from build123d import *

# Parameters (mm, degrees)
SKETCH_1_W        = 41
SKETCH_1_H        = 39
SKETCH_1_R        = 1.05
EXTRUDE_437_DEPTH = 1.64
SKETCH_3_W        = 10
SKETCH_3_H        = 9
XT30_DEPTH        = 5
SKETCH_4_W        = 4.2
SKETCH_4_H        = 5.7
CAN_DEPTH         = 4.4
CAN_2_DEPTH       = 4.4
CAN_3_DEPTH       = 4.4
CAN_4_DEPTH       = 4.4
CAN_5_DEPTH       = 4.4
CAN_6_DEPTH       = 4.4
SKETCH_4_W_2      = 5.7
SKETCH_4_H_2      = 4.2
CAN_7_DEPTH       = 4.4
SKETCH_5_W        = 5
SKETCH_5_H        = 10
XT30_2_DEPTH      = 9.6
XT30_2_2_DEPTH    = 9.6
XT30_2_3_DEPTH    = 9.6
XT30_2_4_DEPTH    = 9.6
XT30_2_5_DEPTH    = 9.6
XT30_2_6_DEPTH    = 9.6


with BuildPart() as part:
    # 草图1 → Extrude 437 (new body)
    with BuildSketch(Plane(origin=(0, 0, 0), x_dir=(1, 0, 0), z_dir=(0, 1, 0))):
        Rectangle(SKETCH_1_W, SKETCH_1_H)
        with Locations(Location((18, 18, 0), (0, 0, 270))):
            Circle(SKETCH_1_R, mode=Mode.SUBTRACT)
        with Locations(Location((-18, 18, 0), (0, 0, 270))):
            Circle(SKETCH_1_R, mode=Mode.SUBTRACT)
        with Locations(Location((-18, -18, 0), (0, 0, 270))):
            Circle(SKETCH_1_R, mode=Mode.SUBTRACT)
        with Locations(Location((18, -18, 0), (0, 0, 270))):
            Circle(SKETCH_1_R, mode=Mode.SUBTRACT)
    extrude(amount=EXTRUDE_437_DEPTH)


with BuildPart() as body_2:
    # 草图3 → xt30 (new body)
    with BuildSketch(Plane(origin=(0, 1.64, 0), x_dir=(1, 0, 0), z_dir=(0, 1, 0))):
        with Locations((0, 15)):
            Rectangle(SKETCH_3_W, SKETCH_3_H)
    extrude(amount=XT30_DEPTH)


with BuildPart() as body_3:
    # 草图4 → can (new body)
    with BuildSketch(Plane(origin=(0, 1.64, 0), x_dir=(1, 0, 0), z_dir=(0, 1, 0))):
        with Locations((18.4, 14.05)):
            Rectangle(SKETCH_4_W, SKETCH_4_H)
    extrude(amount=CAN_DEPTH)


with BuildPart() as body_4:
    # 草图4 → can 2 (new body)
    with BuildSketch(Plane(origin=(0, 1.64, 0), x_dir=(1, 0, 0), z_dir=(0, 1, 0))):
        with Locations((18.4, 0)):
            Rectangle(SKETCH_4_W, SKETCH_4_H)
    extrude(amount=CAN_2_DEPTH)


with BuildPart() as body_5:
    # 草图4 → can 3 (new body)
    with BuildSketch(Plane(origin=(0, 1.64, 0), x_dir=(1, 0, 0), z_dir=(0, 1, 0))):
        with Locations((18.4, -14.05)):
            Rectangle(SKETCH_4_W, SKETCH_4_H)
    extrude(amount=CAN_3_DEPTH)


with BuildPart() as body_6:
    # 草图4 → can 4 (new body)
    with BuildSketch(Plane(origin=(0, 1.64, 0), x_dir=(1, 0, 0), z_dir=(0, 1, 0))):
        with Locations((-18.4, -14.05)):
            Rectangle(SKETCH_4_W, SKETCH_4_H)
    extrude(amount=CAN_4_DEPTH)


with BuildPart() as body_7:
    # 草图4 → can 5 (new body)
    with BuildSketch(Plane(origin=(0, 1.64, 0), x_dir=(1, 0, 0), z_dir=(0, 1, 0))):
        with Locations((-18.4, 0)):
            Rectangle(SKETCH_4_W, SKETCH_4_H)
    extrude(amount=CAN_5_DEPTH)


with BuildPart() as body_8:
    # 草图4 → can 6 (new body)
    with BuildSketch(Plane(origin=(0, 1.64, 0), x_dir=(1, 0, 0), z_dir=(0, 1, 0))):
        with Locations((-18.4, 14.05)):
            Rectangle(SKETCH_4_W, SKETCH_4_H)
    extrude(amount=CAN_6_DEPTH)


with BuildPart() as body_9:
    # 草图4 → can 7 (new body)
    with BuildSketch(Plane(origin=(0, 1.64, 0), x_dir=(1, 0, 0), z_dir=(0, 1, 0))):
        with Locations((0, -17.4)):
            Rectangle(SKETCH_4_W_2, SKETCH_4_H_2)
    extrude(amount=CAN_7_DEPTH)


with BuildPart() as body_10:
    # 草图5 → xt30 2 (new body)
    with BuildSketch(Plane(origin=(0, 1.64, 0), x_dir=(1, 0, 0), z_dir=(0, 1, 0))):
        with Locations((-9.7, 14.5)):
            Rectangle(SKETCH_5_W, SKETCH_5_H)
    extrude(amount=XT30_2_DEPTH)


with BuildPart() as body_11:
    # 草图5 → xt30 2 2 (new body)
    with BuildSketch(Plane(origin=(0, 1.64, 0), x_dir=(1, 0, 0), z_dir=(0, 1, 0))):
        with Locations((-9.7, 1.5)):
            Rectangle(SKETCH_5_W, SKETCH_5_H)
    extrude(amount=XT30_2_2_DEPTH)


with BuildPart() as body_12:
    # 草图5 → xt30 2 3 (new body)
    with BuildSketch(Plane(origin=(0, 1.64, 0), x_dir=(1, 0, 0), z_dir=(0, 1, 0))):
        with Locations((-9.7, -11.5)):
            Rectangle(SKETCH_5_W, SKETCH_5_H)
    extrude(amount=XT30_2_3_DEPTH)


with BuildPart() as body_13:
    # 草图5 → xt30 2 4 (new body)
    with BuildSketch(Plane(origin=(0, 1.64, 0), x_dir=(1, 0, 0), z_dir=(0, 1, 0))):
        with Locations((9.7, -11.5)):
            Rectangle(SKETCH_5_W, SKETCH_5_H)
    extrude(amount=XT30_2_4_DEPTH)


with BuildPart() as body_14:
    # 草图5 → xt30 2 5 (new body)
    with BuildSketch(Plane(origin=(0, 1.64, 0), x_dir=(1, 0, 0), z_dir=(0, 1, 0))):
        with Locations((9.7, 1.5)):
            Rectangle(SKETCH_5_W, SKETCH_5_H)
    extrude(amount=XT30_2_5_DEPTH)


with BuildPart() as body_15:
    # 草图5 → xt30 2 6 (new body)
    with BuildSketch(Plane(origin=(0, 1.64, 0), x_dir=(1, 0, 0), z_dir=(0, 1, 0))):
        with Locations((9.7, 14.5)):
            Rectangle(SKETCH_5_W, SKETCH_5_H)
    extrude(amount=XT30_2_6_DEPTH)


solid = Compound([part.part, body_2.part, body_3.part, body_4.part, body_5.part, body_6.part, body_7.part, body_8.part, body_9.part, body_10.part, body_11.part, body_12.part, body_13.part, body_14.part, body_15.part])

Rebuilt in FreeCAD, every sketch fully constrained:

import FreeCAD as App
import Part
import Sketcher
from FreeCAD import Vector


def add_polygon(sketch, points):
    """Adds a closed chain of lines whose ends are joined by coincident constraints."""
    first, n = sketch.GeometryCount, len(points)
    for a, b in zip(points, points[1:] + points[:1]):
        sketch.addGeometry(Part.LineSegment(App.Vector(*a, 0), App.Vector(*b, 0)), False)
    for i in range(n):
        sketch.addConstraint(Sketcher.Constraint("Coincident", first + i, 2, first + (i + 1) % n, 1))

doc = App.newDocument("Part")
body = doc.addObject("PartDesign::Body", "Body")

# Sketch on XZ plane
sketch1 = body.newObject("Sketcher::SketchObject", "Sketch")
sketch1.AttachmentSupport = (doc.getObject("XZ_Plane"), [""])
sketch1.MapMode = "FlatFace"
add_polygon(sketch1, [(-20.5, -19.5), (-20.5, 19.5), (20.5, 19.5), (20.5, -19.5)])  # lines 0-3
sketch1.addGeometry(Part.Circle(Vector(-18, 18, 0), Vector(0, 0, 1), 1.1), False)  # 4
sketch1.addGeometry(Part.Circle(Vector(18, 18, 0), Vector(0, 0, 1), 1.1), False)  # 5
sketch1.addGeometry(Part.Circle(Vector(-18, -18, 0), Vector(0, 0, 1), 1.1), False)  # 6
sketch1.addGeometry(Part.Circle(Vector(18, -18, 0), Vector(0, 0, 1), 1.1), False)  # 7
sketch1.addConstraint(Sketcher.Constraint("Vertical", 0))
sketch1.addConstraint(Sketcher.Constraint("Horizontal", 1))
sketch1.addConstraint(Sketcher.Constraint("Vertical", 2))
sketch1.addConstraint(Sketcher.Constraint("Horizontal", 3))
sketch1.addConstraint(Sketcher.Constraint("Equal", 4, 5))
sketch1.addConstraint(Sketcher.Constraint("Equal", 5, 6))
sketch1.addConstraint(Sketcher.Constraint("Equal", 6, 7))
sketch1.addConstraint(Sketcher.Constraint("Symmetric", 5, 3, 6, 3, -1, 1))
sketch1.addConstraint(Sketcher.Constraint("Symmetric", 4, 3, 7, 3, -1, 1))
sketch1.addConstraint(Sketcher.Constraint("Symmetric", 0, 2, 2, 2, -1, 1))
sketch1.addConstraint(Sketcher.Constraint("Symmetric", 4, 3, 5, 3, -2))
sketch1.addConstraint(Sketcher.Constraint("Diameter", 4, 2.1))
sketch1.addConstraint(Sketcher.Constraint("DistanceX", 1, 1, 1, 2, 41.0))
sketch1.addConstraint(Sketcher.Constraint("DistanceY", 0, 1, 0, 2, 39.0))
sketch1.addConstraint(Sketcher.Constraint("DistanceX", 4, 3, -1, 1, 18.0))
sketch1.addConstraint(Sketcher.Constraint("DistanceY", -1, 1, 4, 3, 18.0))
pad1 = body.newObject("PartDesign::Pad", "Pad")
pad1.Profile = sketch1
pad1.Length = 1.64
pad1.Reversed = True
body2 = doc.addObject("PartDesign::Body", "Body001")

# Sketch on XZ plane
sketch2 = body2.newObject("Sketcher::SketchObject", "Sketch001")
sketch2.AttachmentSupport = (doc.getObject("XZ_Plane001"), [""])
sketch2.MapMode = "FlatFace"
sketch2.AttachmentOffset = App.Placement(Vector(0, 0, -1.64), App.Rotation())
add_polygon(sketch2, [(-5, -20), (-5, -10), (5, -10), (5, -20)])  # lines 0-3
sketch2.addConstraint(Sketcher.Constraint("Vertical", 0))
sketch2.addConstraint(Sketcher.Constraint("Horizontal", 1))
sketch2.addConstraint(Sketcher.Constraint("Vertical", 2))
sketch2.addConstraint(Sketcher.Constraint("Horizontal", 3))
sketch2.addConstraint(Sketcher.Constraint("DistanceX", 1, 1, 1, 2, 10.0))
sketch2.addConstraint(Sketcher.Constraint("DistanceY", 0, 1, 0, 2, 9.0))
sketch2.addConstraint(Sketcher.Constraint("DistanceX", 0, 2, -1, 1, 5.0))
sketch2.addConstraint(Sketcher.Constraint("DistanceY", 0, 2, -1, 1, 10.5))
pad2 = body2.newObject("PartDesign::Pad", "Pad001")
pad2.Profile = sketch2
pad2.Length = 5
pad2.Reversed = True
body3 = doc.addObject("PartDesign::Body", "Body002")

# Sketch on XZ plane
sketch3 = body3.newObject("Sketcher::SketchObject", "Sketch002")
sketch3.AttachmentSupport = (doc.getObject("XZ_Plane002"), [""])
sketch3.MapMode = "FlatFace"
sketch3.AttachmentOffset = App.Placement(Vector(0, 0, -1.64), App.Rotation())
add_polygon(sketch3, [(16.3, -16.9), (16.3, -11.2), (20.5, -11.2), (20.5, -16.9)])  # lines 0-3
sketch3.addConstraint(Sketcher.Constraint("Vertical", 0))
sketch3.addConstraint(Sketcher.Constraint("Horizontal", 1))
sketch3.addConstraint(Sketcher.Constraint("Vertical", 2))
sketch3.addConstraint(Sketcher.Constraint("Horizontal", 3))
sketch3.addConstraint(Sketcher.Constraint("DistanceX", 1, 1, 1, 2, 4.2))
sketch3.addConstraint(Sketcher.Constraint("DistanceY", 0, 1, 0, 2, 5.7))
sketch3.addConstraint(Sketcher.Constraint("DistanceX", -1, 1, 0, 2, 16.3))
sketch3.addConstraint(Sketcher.Constraint("DistanceY", 0, 2, -1, 1, 11.2))
pad3 = body3.newObject("PartDesign::Pad", "Pad002")
pad3.Profile = sketch3
pad3.Length = 4.4
pad3.Reversed = True
body4 = doc.addObject("PartDesign::Body", "Body003")

# Sketch on XZ plane
sketch4 = body4.newObject("Sketcher::SketchObject", "Sketch003")
sketch4.AttachmentSupport = (doc.getObject("XZ_Plane003"), [""])
sketch4.MapMode = "FlatFace"
sketch4.AttachmentOffset = App.Placement(Vector(0, 0, -1.64), App.Rotation())
add_polygon(sketch4, [(16.3, -2.9), (16.3, 2.9), (20.5, 2.9), (20.5, -2.9)])  # lines 0-3
sketch4.addConstraint(Sketcher.Constraint("Vertical", 0))
sketch4.addConstraint(Sketcher.Constraint("Horizontal", 1))
sketch4.addConstraint(Sketcher.Constraint("Vertical", 2))
sketch4.addConstraint(Sketcher.Constraint("Horizontal", 3))
sketch4.addConstraint(Sketcher.Constraint("DistanceX", 1, 1, 1, 2, 4.2))
sketch4.addConstraint(Sketcher.Constraint("DistanceY", 0, 1, 0, 2, 5.7))
sketch4.addConstraint(Sketcher.Constraint("DistanceX", -1, 1, 0, 2, 16.3))
sketch4.addConstraint(Sketcher.Constraint("DistanceY", -1, 1, 0, 2, 2.85))
pad4 = body4.newObject("PartDesign::Pad", "Pad003")
pad4.Profile = sketch4
pad4.Length = 4.4
pad4.Reversed = True
body5 = doc.addObject("PartDesign::Body", "Body004")

# Sketch on XZ plane
sketch5 = body5.newObject("Sketcher::SketchObject", "Sketch004")
sketch5.AttachmentSupport = (doc.getObject("XZ_Plane004"), [""])
sketch5.MapMode = "FlatFace"
sketch5.AttachmentOffset = App.Placement(Vector(0, 0, -1.64), App.Rotation())
add_polygon(sketch5, [(16.3, 11.2), (16.3, 16.9), (20.5, 16.9), (20.5, 11.2)])  # lines 0-3
sketch5.addConstraint(Sketcher.Constraint("Vertical", 0))
sketch5.addConstraint(Sketcher.Constraint("Horizontal", 1))
sketch5.addConstraint(Sketcher.Constraint("Vertical", 2))
sketch5.addConstraint(Sketcher.Constraint("Horizontal", 3))
sketch5.addConstraint(Sketcher.Constraint("DistanceX", 1, 1, 1, 2, 4.2))
sketch5.addConstraint(Sketcher.Constraint("DistanceY", 0, 1, 0, 2, 5.7))
sketch5.addConstraint(Sketcher.Constraint("DistanceX", -1, 1, 0, 2, 16.3))
sketch5.addConstraint(Sketcher.Constraint("DistanceY", -1, 1, 0, 2, 16.9))
pad5 = body5.newObject("PartDesign::Pad", "Pad004")
pad5.Profile = sketch5
pad5.Length = 4.4
pad5.Reversed = True
body6 = doc.addObject("PartDesign::Body", "Body005")

# Sketch on XZ plane
sketch6 = body6.newObject("Sketcher::SketchObject", "Sketch005")
sketch6.AttachmentSupport = (doc.getObject("XZ_Plane005"), [""])
sketch6.MapMode = "FlatFace"
sketch6.AttachmentOffset = App.Placement(Vector(0, 0, -1.64), App.Rotation())
add_polygon(sketch6, [(-20.5, 11.2), (-20.5, 16.9), (-16.3, 16.9), (-16.3, 11.2)])  # lines 0-3
sketch6.addConstraint(Sketcher.Constraint("Vertical", 0))
sketch6.addConstraint(Sketcher.Constraint("Horizontal", 1))
sketch6.addConstraint(Sketcher.Constraint("Vertical", 2))
sketch6.addConstraint(Sketcher.Constraint("Horizontal", 3))
sketch6.addConstraint(Sketcher.Constraint("DistanceX", 1, 1, 1, 2, 4.2))
sketch6.addConstraint(Sketcher.Constraint("DistanceY", 0, 1, 0, 2, 5.7))
sketch6.addConstraint(Sketcher.Constraint("DistanceX", 0, 2, -1, 1, 20.5))
sketch6.addConstraint(Sketcher.Constraint("DistanceY", -1, 1, 0, 2, 16.9))
pad6 = body6.newObject("PartDesign::Pad", "Pad005")
pad6.Profile = sketch6
pad6.Length = 4.4
pad6.Reversed = True
body7 = doc.addObject("PartDesign::Body", "Body006")

# Sketch on XZ plane
sketch7 = body7.newObject("Sketcher::SketchObject", "Sketch006")
sketch7.AttachmentSupport = (doc.getObject("XZ_Plane006"), [""])
sketch7.MapMode = "FlatFace"
sketch7.AttachmentOffset = App.Placement(Vector(0, 0, -1.64), App.Rotation())
add_polygon(sketch7, [(-20.5, -2.9), (-20.5, 2.9), (-16.3, 2.9), (-16.3, -2.9)])  # lines 0-3
sketch7.addConstraint(Sketcher.Constraint("Vertical", 0))
sketch7.addConstraint(Sketcher.Constraint("Horizontal", 1))
sketch7.addConstraint(Sketcher.Constraint("Vertical", 2))
sketch7.addConstraint(Sketcher.Constraint("Horizontal", 3))
sketch7.addConstraint(Sketcher.Constraint("DistanceX", 1, 1, 1, 2, 4.2))
sketch7.addConstraint(Sketcher.Constraint("DistanceY", 0, 1, 0, 2, 5.7))
sketch7.addConstraint(Sketcher.Constraint("DistanceX", 0, 2, -1, 1, 20.5))
sketch7.addConstraint(Sketcher.Constraint("DistanceY", -1, 1, 0, 2, 2.85))
pad7 = body7.newObject("PartDesign::Pad", "Pad006")
pad7.Profile = sketch7
pad7.Length = 4.4
pad7.Reversed = True
body8 = doc.addObject("PartDesign::Body", "Body007")

# Sketch on XZ plane
sketch8 = body8.newObject("Sketcher::SketchObject", "Sketch007")
sketch8.AttachmentSupport = (doc.getObject("XZ_Plane007"), [""])
sketch8.MapMode = "FlatFace"
sketch8.AttachmentOffset = App.Placement(Vector(0, 0, -1.64), App.Rotation())
add_polygon(sketch8, [(-20.5, -16.9), (-20.5, -11.2), (-16.3, -11.2), (-16.3, -16.9)])  # lines 0-3
sketch8.addConstraint(Sketcher.Constraint("Vertical", 0))
sketch8.addConstraint(Sketcher.Constraint("Horizontal", 1))
sketch8.addConstraint(Sketcher.Constraint("Vertical", 2))
sketch8.addConstraint(Sketcher.Constraint("Horizontal", 3))
sketch8.addConstraint(Sketcher.Constraint("DistanceX", 1, 1, 1, 2, 4.2))
sketch8.addConstraint(Sketcher.Constraint("DistanceY", 0, 1, 0, 2, 5.7))
sketch8.addConstraint(Sketcher.Constraint("DistanceX", 0, 2, -1, 1, 20.5))
sketch8.addConstraint(Sketcher.Constraint("DistanceY", 0, 2, -1, 1, 11.2))
pad8 = body8.newObject("PartDesign::Pad", "Pad007")
pad8.Profile = sketch8
pad8.Length = 4.4
pad8.Reversed = True
body9 = doc.addObject("PartDesign::Body", "Body008")

# Sketch on XZ plane
sketch9 = body9.newObject("Sketcher::SketchObject", "Sketch008")
sketch9.AttachmentSupport = (doc.getObject("XZ_Plane008"), [""])
sketch9.MapMode = "FlatFace"
sketch9.AttachmentOffset = App.Placement(Vector(0, 0, -1.64), App.Rotation())
add_polygon(sketch9, [(-2.9, 15.3), (-2.9, 19.5), (2.9, 19.5), (2.9, 15.3)])  # lines 0-3
sketch9.addConstraint(Sketcher.Constraint("Vertical", 0))
sketch9.addConstraint(Sketcher.Constraint("Horizontal", 1))
sketch9.addConstraint(Sketcher.Constraint("Vertical", 2))
sketch9.addConstraint(Sketcher.Constraint("Horizontal", 3))
sketch9.addConstraint(Sketcher.Constraint("DistanceX", 1, 1, 1, 2, 5.7))
sketch9.addConstraint(Sketcher.Constraint("DistanceY", 0, 1, 0, 2, 4.2))
sketch9.addConstraint(Sketcher.Constraint("DistanceY", -1, 1, 0, 2, 19.5))
sketch9.addConstraint(Sketcher.Constraint("DistanceX", 0, 2, -1, 1, 2.85))
pad9 = body9.newObject("PartDesign::Pad", "Pad008")
pad9.Profile = sketch9
pad9.Length = 4.4
pad9.Reversed = True
body10 = doc.addObject("PartDesign::Body", "Body009")

# Sketch on XZ plane
sketch10 = body10.newObject("Sketcher::SketchObject", "Sketch009")
sketch10.AttachmentSupport = (doc.getObject("XZ_Plane009"), [""])
sketch10.MapMode = "FlatFace"
sketch10.AttachmentOffset = App.Placement(Vector(0, 0, -1.64), App.Rotation())
add_polygon(sketch10, [(-12.2, -19.5), (-12.2, -9.5), (-7.2, -9.5), (-7.2, -19.5)])  # lines 0-3
sketch10.addConstraint(Sketcher.Constraint("Vertical", 0))
sketch10.addConstraint(Sketcher.Constraint("Horizontal", 1))
sketch10.addConstraint(Sketcher.Constraint("Vertical", 2))
sketch10.addConstraint(Sketcher.Constraint("Horizontal", 3))
sketch10.addConstraint(Sketcher.Constraint("DistanceX", 1, 1, 1, 2, 5.0))
sketch10.addConstraint(Sketcher.Constraint("DistanceY", 0, 1, 0, 2, 10.0))
sketch10.addConstraint(Sketcher.Constraint("DistanceX", 0, 2, -1, 1, 12.2))
sketch10.addConstraint(Sketcher.Constraint("DistanceY", 0, 2, -1, 1, 9.5))
pad10 = body10.newObject("PartDesign::Pad", "Pad009")
pad10.Profile = sketch10
pad10.Length = 9.6
pad10.Reversed = True
body11 = doc.addObject("PartDesign::Body", "Body010")

# Sketch on XZ plane
sketch11 = body11.newObject("Sketcher::SketchObject", "Sketch010")
sketch11.AttachmentSupport = (doc.getObject("XZ_Plane010"), [""])
sketch11.MapMode = "FlatFace"
sketch11.AttachmentOffset = App.Placement(Vector(0, 0, -1.64), App.Rotation())
add_polygon(sketch11, [(-12.2, -6.5), (-12.2, 3.5), (-7.2, 3.5), (-7.2, -6.5)])  # lines 0-3
sketch11.addConstraint(Sketcher.Constraint("Vertical", 0))
sketch11.addConstraint(Sketcher.Constraint("Horizontal", 1))
sketch11.addConstraint(Sketcher.Constraint("Vertical", 2))
sketch11.addConstraint(Sketcher.Constraint("Horizontal", 3))
sketch11.addConstraint(Sketcher.Constraint("DistanceX", 1, 1, 1, 2, 5.0))
sketch11.addConstraint(Sketcher.Constraint("DistanceY", 0, 1, 0, 2, 10.0))
sketch11.addConstraint(Sketcher.Constraint("DistanceX", 0, 2, -1, 1, 12.2))
sketch11.addConstraint(Sketcher.Constraint("DistanceY", -1, 1, 0, 2, 3.5))
pad11 = body11.newObject("PartDesign::Pad", "Pad010")
pad11.Profile = sketch11
pad11.Length = 9.6
pad11.Reversed = True
body12 = doc.addObject("PartDesign::Body", "Body011")

# Sketch on XZ plane
sketch12 = body12.newObject("Sketcher::SketchObject", "Sketch011")
sketch12.AttachmentSupport = (doc.getObject("XZ_Plane011"), [""])
sketch12.MapMode = "FlatFace"
sketch12.AttachmentOffset = App.Placement(Vector(0, 0, -1.64), App.Rotation())
add_polygon(sketch12, [(-12.2, 6.5), (-12.2, 16.5), (-7.2, 16.5), (-7.2, 6.5)])  # lines 0-3
sketch12.addConstraint(Sketcher.Constraint("Vertical", 0))
sketch12.addConstraint(Sketcher.Constraint("Horizontal", 1))
sketch12.addConstraint(Sketcher.Constraint("Vertical", 2))
sketch12.addConstraint(Sketcher.Constraint("Horizontal", 3))
sketch12.addConstraint(Sketcher.Constraint("DistanceX", 1, 1, 1, 2, 5.0))
sketch12.addConstraint(Sketcher.Constraint("DistanceY", 0, 1, 0, 2, 10.0))
sketch12.addConstraint(Sketcher.Constraint("DistanceX", 0, 2, -1, 1, 12.2))
sketch12.addConstraint(Sketcher.Constraint("DistanceY", -1, 1, 0, 2, 16.5))
pad12 = body12.newObject("PartDesign::Pad", "Pad011")
pad12.Profile = sketch12
pad12.Length = 9.6
pad12.Reversed = True
body13 = doc.addObject("PartDesign::Body", "Body012")

# Sketch on XZ plane
sketch13 = body13.newObject("Sketcher::SketchObject", "Sketch012")
sketch13.AttachmentSupport = (doc.getObject("XZ_Plane012"), [""])
sketch13.MapMode = "FlatFace"
sketch13.AttachmentOffset = App.Placement(Vector(0, 0, -1.64), App.Rotation())
add_polygon(sketch13, [(7.2, 6.5), (7.2, 16.5), (12.2, 16.5), (12.2, 6.5)])  # lines 0-3
sketch13.addConstraint(Sketcher.Constraint("Vertical", 0))
sketch13.addConstraint(Sketcher.Constraint("Horizontal", 1))
sketch13.addConstraint(Sketcher.Constraint("Vertical", 2))
sketch13.addConstraint(Sketcher.Constraint("Horizontal", 3))
sketch13.addConstraint(Sketcher.Constraint("DistanceX", 1, 1, 1, 2, 5.0))
sketch13.addConstraint(Sketcher.Constraint("DistanceY", 0, 1, 0, 2, 10.0))
sketch13.addConstraint(Sketcher.Constraint("DistanceX", -1, 1, 0, 2, 7.2))
sketch13.addConstraint(Sketcher.Constraint("DistanceY", -1, 1, 0, 2, 16.5))
pad13 = body13.newObject("PartDesign::Pad", "Pad012")
pad13.Profile = sketch13
pad13.Length = 9.6
pad13.Reversed = True
body14 = doc.addObject("PartDesign::Body", "Body013")

# Sketch on XZ plane
sketch14 = body14.newObject("Sketcher::SketchObject", "Sketch013")
sketch14.AttachmentSupport = (doc.getObject("XZ_Plane013"), [""])
sketch14.MapMode = "FlatFace"
sketch14.AttachmentOffset = App.Placement(Vector(0, 0, -1.64), App.Rotation())
add_polygon(sketch14, [(7.2, -6.5), (7.2, 3.5), (12.2, 3.5), (12.2, -6.5)])  # lines 0-3
sketch14.addConstraint(Sketcher.Constraint("Vertical", 0))
sketch14.addConstraint(Sketcher.Constraint("Horizontal", 1))
sketch14.addConstraint(Sketcher.Constraint("Vertical", 2))
sketch14.addConstraint(Sketcher.Constraint("Horizontal", 3))
sketch14.addConstraint(Sketcher.Constraint("DistanceX", 1, 1, 1, 2, 5.0))
sketch14.addConstraint(Sketcher.Constraint("DistanceY", 0, 1, 0, 2, 10.0))
sketch14.addConstraint(Sketcher.Constraint("DistanceX", -1, 1, 0, 2, 7.2))
sketch14.addConstraint(Sketcher.Constraint("DistanceY", -1, 1, 0, 2, 3.5))
pad14 = body14.newObject("PartDesign::Pad", "Pad013")
pad14.Profile = sketch14
pad14.Length = 9.6
pad14.Reversed = True
body15 = doc.addObject("PartDesign::Body", "Body014")

# Sketch on XZ plane
sketch15 = body15.newObject("Sketcher::SketchObject", "Sketch014")
sketch15.AttachmentSupport = (doc.getObject("XZ_Plane014"), [""])
sketch15.MapMode = "FlatFace"
sketch15.AttachmentOffset = App.Placement(Vector(0, 0, -1.64), App.Rotation())
add_polygon(sketch15, [(7.2, -19.5), (7.2, -9.5), (12.2, -9.5), (12.2, -19.5)])  # lines 0-3
sketch15.addConstraint(Sketcher.Constraint("Vertical", 0))
sketch15.addConstraint(Sketcher.Constraint("Horizontal", 1))
sketch15.addConstraint(Sketcher.Constraint("Vertical", 2))
sketch15.addConstraint(Sketcher.Constraint("Horizontal", 3))
sketch15.addConstraint(Sketcher.Constraint("DistanceX", 1, 1, 1, 2, 5.0))
sketch15.addConstraint(Sketcher.Constraint("DistanceY", 0, 1, 0, 2, 10.0))
sketch15.addConstraint(Sketcher.Constraint("DistanceX", -1, 1, 0, 2, 7.2))
sketch15.addConstraint(Sketcher.Constraint("DistanceY", 0, 2, -1, 1, 9.5))
pad15 = body15.newObject("PartDesign::Pad", "Pad014")
pad15.Profile = sketch15
pad15.Length = 9.6
pad15.Reversed = True

doc.recompute()
